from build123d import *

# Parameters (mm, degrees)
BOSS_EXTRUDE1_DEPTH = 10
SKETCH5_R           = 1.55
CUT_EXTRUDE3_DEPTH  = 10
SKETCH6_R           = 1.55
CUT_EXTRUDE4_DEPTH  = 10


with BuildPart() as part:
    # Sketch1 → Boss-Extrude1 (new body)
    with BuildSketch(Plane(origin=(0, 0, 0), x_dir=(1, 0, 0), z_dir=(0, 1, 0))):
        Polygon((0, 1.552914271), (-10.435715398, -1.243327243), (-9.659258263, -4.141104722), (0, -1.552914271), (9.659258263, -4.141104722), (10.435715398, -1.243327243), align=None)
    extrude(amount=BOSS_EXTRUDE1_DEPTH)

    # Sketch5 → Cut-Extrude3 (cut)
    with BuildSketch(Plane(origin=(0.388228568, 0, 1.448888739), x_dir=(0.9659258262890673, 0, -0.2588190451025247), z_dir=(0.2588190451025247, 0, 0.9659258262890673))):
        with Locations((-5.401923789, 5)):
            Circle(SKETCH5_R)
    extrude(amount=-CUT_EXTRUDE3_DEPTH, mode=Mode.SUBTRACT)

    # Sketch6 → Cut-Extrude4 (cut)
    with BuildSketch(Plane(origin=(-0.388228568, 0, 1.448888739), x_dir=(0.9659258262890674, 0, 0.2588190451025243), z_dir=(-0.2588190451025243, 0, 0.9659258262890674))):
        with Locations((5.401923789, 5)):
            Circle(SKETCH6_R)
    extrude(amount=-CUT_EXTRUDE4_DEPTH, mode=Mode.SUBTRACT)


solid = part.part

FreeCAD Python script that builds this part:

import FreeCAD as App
import Part
import Sketcher
from FreeCAD import Vector
Q = App.Units.Quantity

doc = App.newDocument("Part")
body = doc.addObject("PartDesign::Body", "Body")

# Sketch on XZ plane
sketch1 = body.newObject("Sketcher::SketchObject", "Sketch")
sketch1.AttachmentSupport = (doc.getObject("XZ_Plane"), [""])
sketch1.MapMode = "FlatFace"
sketch1.addGeometry([
    Part.LineSegment(Vector(0, -1.552914, 0), Vector(-10.435715, 1.243327, 0)),  # 0
    Part.LineSegment(Vector(-10.435715, 1.243327, 0), Vector(-9.659258, 4.141105, 0)),  # 1
    Part.LineSegment(Vector(-9.659258, 4.141105, 0), Vector(0, 1.552914, 0)),  # 2
    Part.LineSegment(Vector(0, 1.552914, 0), Vector(9.659258, 4.141105, 0)),  # 3
    Part.LineSegment(Vector(9.659258, 4.141105, 0), Vector(10.435715, 1.243327, 0)),  # 4
    Part.LineSegment(Vector(10.435715, 1.243327, 0), Vector(0, -1.552914, 0)),  # 5
], False)
sketch1.addConstraint([
    Sketcher.Constraint("Coincident", 0, 2, 1, 1),
    Sketcher.Constraint("Coincident", 1, 2, 2, 1),
    Sketcher.Constraint("Coincident", 2, 2, 3, 1),
    Sketcher.Constraint("Coincident", 3, 2, 4, 1),
    Sketcher.Constraint("Coincident", 4, 2, 5, 1),
    Sketcher.Constraint("Coincident", 5, 2, 0, 1),
    Sketcher.Constraint("Symmetric", 2, 2, 5, 2, -1, 1),
    Sketcher.Constraint("Symmetric", 1, 2, 3, 2, -2),
    Sketcher.Constraint("Symmetric", 0, 2, 4, 2, -2),
    Sketcher.Constraint("PointOnObject", 2, 2, -2),
    Sketcher.Constraint("Perpendicular", 0, 1),
    Sketcher.Constraint("Perpendicular", 1, 2),
    Sketcher.Constraint("Angle", 0, Q("165 deg")),
    Sketcher.Constraint("Distance", 1, Q("3 mm")),
    Sketcher.Constraint("Distance", 2, Q("10 mm")),
])
pad1 = body.newObject("PartDesign::Pad", "Pad")
pad1.Profile = sketch1
pad1.Length = 10
pad1.Reversed = True

# Sketch on an angled plane
sketch2 = body.newObject("Sketcher::SketchObject", "Sketch001")
sketch2.Placement = App.Placement(Vector(0.388229, 0, 1.448889), App.Rotation(Vector(0.965925826, 0, -0.258819045), Vector(0, 0.999999999, 0), Vector(0.258819045, 0, 0.965925826), "ZXY"))
sketch2.addGeometry(Part.Circle(Vector(-5.401924, 5, 0), Vector(0, 0, 1), 1.55), False)
sketch2.addConstraint([
    Sketcher.Constraint("Diameter", 0, Q("3.1 mm")),
    Sketcher.Constraint("DistanceY", -1, 1, 0, 3, Q("5 mm")),
    Sketcher.Constraint("DistanceX", 0, 3, -1, 1, Q("5.401924 mm")),
])
pocket1 = body.newObject("PartDesign::Pocket", "Pocket")
pocket1.Profile = sketch2
pocket1.Length = 10

# Sketch on an angled plane
sketch3 = body.newObject("Sketcher::SketchObject", "Sketch002")
sketch3.Placement = App.Placement(Vector(-0.388229, 0, 1.448889), App.Rotation(Vector(0.965925826, 0, 0.258819045), Vector(0, 0.999999999, 0), Vector(-0.258819045, 0, 0.965925826), "ZXY"))
sketch3.addGeometry(Part.Circle(Vector(5.401924, 5, 0), Vector(0, 0, 1), 1.55), False)
sketch3.addConstraint([
    Sketcher.Constraint("Diameter", 0, Q("3.1 mm")),
    Sketcher.Constraint("DistanceY", -1, 1, 0, 3, Q("5 mm")),
    Sketcher.Constraint("DistanceX", -1, 1, 0, 3, Q("5.401924 mm")),
])
pocket2 = body.newObject("PartDesign::Pocket", "Pocket001")
pocket2.Profile = sketch3
pocket2.Length = 10

doc.recompute()
